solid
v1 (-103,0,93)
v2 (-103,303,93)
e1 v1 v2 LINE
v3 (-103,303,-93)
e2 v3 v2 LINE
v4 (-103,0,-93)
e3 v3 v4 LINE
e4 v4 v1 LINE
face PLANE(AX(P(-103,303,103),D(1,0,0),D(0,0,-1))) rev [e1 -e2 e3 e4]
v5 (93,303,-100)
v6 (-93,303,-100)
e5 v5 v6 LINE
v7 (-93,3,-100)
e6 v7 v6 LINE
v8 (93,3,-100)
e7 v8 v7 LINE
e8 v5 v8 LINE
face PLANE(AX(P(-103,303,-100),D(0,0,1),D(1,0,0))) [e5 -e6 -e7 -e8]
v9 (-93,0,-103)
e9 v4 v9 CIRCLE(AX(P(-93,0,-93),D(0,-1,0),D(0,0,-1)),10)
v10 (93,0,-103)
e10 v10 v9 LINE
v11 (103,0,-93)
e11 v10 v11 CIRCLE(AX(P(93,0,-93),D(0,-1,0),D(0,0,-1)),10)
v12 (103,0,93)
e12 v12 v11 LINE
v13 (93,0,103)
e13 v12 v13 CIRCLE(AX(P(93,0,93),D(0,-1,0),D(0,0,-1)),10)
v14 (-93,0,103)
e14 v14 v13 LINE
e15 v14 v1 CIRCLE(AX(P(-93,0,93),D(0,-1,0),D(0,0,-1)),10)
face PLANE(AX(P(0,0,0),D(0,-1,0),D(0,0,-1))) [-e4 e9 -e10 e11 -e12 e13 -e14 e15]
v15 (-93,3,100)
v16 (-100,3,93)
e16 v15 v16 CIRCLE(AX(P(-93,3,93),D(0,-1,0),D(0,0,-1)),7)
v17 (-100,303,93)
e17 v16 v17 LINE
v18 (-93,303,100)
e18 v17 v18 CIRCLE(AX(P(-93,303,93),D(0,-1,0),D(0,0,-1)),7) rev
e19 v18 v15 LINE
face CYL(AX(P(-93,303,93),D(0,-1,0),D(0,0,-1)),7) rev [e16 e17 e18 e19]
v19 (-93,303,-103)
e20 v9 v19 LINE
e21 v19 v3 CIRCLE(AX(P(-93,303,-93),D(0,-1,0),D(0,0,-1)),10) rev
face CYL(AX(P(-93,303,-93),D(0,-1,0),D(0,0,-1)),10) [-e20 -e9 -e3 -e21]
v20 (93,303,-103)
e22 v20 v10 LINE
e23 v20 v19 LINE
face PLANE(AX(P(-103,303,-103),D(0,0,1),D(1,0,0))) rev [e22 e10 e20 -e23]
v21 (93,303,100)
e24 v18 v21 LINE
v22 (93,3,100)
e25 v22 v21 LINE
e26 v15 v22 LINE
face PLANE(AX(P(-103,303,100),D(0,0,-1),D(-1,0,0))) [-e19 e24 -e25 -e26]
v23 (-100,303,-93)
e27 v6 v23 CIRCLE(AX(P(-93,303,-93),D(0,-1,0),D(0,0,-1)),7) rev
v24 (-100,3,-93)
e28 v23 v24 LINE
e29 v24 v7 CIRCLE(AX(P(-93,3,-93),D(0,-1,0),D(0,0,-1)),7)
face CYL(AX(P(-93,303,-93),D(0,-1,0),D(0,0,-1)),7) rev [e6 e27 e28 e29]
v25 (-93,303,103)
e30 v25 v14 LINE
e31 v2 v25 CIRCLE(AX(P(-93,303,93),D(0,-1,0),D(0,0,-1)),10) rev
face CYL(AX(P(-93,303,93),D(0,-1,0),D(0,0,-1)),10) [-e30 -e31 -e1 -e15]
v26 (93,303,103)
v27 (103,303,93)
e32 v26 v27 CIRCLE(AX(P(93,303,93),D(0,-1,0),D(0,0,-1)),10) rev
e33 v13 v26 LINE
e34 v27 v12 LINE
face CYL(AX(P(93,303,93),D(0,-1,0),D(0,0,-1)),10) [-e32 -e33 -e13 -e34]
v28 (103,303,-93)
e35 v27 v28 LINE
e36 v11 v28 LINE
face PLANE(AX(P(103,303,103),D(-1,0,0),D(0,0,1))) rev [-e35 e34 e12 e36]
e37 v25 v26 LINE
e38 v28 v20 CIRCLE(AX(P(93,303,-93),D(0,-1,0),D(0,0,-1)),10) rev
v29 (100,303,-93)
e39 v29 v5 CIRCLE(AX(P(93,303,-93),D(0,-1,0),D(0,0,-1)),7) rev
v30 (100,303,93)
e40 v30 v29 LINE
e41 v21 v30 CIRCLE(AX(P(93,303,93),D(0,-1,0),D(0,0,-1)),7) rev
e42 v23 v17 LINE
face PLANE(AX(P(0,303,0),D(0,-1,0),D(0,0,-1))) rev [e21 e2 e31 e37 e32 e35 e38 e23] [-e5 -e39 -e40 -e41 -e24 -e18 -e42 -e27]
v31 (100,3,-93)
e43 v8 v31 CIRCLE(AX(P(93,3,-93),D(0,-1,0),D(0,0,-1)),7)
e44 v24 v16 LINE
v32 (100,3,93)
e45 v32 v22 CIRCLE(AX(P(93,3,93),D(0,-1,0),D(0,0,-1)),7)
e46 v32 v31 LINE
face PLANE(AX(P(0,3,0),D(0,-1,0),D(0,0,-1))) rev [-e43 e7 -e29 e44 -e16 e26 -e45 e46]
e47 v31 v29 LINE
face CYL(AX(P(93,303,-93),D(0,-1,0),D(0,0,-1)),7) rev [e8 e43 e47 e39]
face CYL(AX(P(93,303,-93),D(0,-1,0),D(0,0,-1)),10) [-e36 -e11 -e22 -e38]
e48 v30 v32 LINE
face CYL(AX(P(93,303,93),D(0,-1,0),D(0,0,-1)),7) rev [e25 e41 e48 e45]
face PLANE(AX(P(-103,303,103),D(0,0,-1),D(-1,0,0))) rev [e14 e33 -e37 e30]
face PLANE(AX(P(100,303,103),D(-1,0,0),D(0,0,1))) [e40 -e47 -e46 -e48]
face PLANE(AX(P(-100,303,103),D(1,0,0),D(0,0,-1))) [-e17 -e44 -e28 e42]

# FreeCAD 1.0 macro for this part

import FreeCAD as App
import Part
import Sketcher


def edges_at(feature, points):
    """Names of the edges that pass closest to the given points."""
    edges = feature.Shape.Edges
    near = lambda p: min(range(len(edges)), key=lambda i: edges[i].distToShape(Part.Vertex(*p))[0])
    return sorted({f"Edge{near(p) + 1}" for p in points})


def faces_at(feature, points):
    """Names of the faces that lie closest to the given points."""
    faces = feature.Shape.Faces
    near = lambda p: min(range(len(faces)), key=lambda i: faces[i].distToShape(Part.Vertex(*p))[0])
    return sorted({f"Face{near(p) + 1}" for p in points})

doc = App.newDocument("Part")
body = doc.addObject("PartDesign::Body", "Body")

# Sketch on XZ plane
sketch1 = body.newObject("Sketcher::SketchObject", "Sketch")
sketch1.AttachmentSupport = (doc.getObject("XZ_Plane"), [""])
sketch1.MapMode = "FlatFace"
sketch1.addGeometry(Part.LineSegment(App.Vector(-103, -103, 0), App.Vector(-103, 103, 0)), False)
sketch1.addGeometry(Part.LineSegment(App.Vector(-103, 103, 0), App.Vector(103, 103, 0)), False)
sketch1.addGeometry(Part.LineSegment(App.Vector(103, 103, 0), App.Vector(103, -103, 0)), False)
sketch1.addGeometry(Part.LineSegment(App.Vector(103, -103, 0), App.Vector(-103, -103, 0)), False)
sketch1.addConstraint(Sketcher.Constraint("Coincident", 0, 2, 1, 1))
sketch1.addConstraint(Sketcher.Constraint("Coincident", 1, 2, 2, 1))
sketch1.addConstraint(Sketcher.Constraint("Coincident", 2, 2, 3, 1))
sketch1.addConstraint(Sketcher.Constraint("Coincident", 3, 2, 0, 1))
sketch1.addConstraint(Sketcher.Constraint("Vertical", 0))
sketch1.addConstraint(Sketcher.Constraint("Horizontal", 1))
sketch1.addConstraint(Sketcher.Constraint("Vertical", 2))
sketch1.addConstraint(Sketcher.Constraint("Horizontal", 3))
sketch1.addConstraint(Sketcher.Constraint("Symmetric", 0, 2, 2, 2, -1, 1))
sketch1.addConstraint(Sketcher.Constraint("Equal", 3, 0))
sketch1.addConstraint(Sketcher.Constraint("DistanceX", 1, 1, 1, 2, 206.0))
pad1 = body.newObject("PartDesign::Pad", "Pad")
pad1.Profile = sketch1
pad1.Length = 303
pad1.Reversed = True
doc.recompute()

fillet = body.newObject("PartDesign::Fillet", "Fillet")
fillet.Base = (pad1, edges_at(pad1, [
    (103, 151.5, 103),
    (-103, 151.5, 103),
    (-103, 151.5, -103),
    (103, 151.5, -103),
]))
fillet.Radius = 10
doc.recompute()

thickness = body.newObject("PartDesign::Thickness", "Thickness")
thickness.Base = (fillet, faces_at(fillet, [(0, 303, 0)]))
thickness.Value = 3
thickness.Reversed = True
thickness.Join = "Intersection"

doc.recompute()
